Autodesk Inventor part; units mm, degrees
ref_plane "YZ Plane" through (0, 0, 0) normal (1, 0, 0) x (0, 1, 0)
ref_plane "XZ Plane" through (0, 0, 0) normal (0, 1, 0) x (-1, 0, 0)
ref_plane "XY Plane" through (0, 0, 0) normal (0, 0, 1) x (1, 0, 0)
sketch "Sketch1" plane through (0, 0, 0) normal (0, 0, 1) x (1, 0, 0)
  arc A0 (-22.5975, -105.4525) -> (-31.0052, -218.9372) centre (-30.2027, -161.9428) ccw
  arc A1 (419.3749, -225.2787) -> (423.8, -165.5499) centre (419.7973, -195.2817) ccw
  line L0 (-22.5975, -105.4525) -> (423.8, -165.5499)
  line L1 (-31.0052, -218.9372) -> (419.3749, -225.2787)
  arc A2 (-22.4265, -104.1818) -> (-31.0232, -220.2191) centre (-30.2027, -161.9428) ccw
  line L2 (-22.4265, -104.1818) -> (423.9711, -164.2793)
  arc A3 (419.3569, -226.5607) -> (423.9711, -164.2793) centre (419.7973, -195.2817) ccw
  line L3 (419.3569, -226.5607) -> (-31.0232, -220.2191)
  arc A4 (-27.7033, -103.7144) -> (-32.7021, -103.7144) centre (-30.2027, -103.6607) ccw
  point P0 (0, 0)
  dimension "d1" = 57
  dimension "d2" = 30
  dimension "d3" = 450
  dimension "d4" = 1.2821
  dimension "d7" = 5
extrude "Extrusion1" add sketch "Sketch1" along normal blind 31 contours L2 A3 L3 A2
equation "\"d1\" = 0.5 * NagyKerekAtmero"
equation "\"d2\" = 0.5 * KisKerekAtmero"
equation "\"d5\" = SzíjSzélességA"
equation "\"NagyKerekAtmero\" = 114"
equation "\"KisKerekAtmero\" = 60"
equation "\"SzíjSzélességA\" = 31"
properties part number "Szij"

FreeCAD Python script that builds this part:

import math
import FreeCAD as App
import Part
import Sketcher

V = App.Vector
Q = App.Units.Quantity

doc = App.newDocument("Part")
body = doc.addObject("PartDesign::Body", "Body")

# Sketch on XY plane
sketch1 = body.newObject("Sketcher::SketchObject", "Sketch")
sketch1.AttachmentSupport = (doc.getObject("XY_Plane"), [""])
sketch1.MapMode = "FlatFace"
sketch1.addGeometry(Part.LineSegment(V(423.9711, -164.2793, 0), V(-22.4265, -104.1818, 0)), False)
sketch1.addGeometry(Part.ArcOfCircle(Part.Circle(V(-30.2027, -161.9428, 0), V(0, 0, 1), 58.282093), math.radians(82.332532), math.radians(269.193359)), False)
sketch1.addGeometry(Part.LineSegment(V(-31.0232, -220.2191, 0), V(419.3569, -226.5607, 0)), False)
sketch1.addGeometry(Part.ArcOfCircle(Part.Circle(V(419.7973, -195.2817, 0), V(0, 0, 1), 31.2821), math.radians(-90.806656), math.radians(82.33247)), False)
sketch1.addGeometry(Part.ArcOfCircle(Part.Circle(V(-30.2027, -161.9428, 0), V(0, 0, 1), 56.999939), math.radians(82.332462), math.radians(269.19331)), False)
sketch1.addGeometry(Part.LineSegment(V(-22.5975, -105.4525, 0), V(423.8, -165.5499, 0)), False)
sketch1.addGeometry(Part.ArcOfCircle(Part.Circle(V(419.7973, -195.2817, 0), V(0, 0, 1), 29.999974), math.radians(-90.806752), math.radians(82.332548)), False)
sketch1.addGeometry(Part.LineSegment(V(419.3749, -225.2787, 0), V(-31.0052, -218.9372, 0)), False)
sketch1.addConstraint(Sketcher.Constraint("Tangent", 0, 2, 1, 1))
sketch1.addConstraint(Sketcher.Constraint("Tangent", 1, 2, 2, 1))
sketch1.addConstraint(Sketcher.Constraint("Tangent", 2, 2, 3, 1))
sketch1.addConstraint(Sketcher.Constraint("Tangent", 3, 2, 0, 1))
sketch1.addConstraint(Sketcher.Constraint("Tangent", 4, 1, 5, 1))
sketch1.addConstraint(Sketcher.Constraint("Tangent", 5, 2, 6, 2))
sketch1.addConstraint(Sketcher.Constraint("Tangent", 6, 1, 7, 1))
sketch1.addConstraint(Sketcher.Constraint("Tangent", 7, 2, 4, 2))
sketch1.addConstraint(Sketcher.Constraint("Coincident", 4, 3, 1, 3))
sketch1.addConstraint(Sketcher.Constraint("Coincident", 6, 3, 3, 3))
sketch1.addConstraint(Sketcher.Constraint("Parallel", 0, 5))
sketch1.addConstraint(Sketcher.Constraint("Radius", 4, Q("57 mm")))
sketch1.addConstraint(Sketcher.Constraint("Radius", 6, Q("30 mm")))
sketch1.addConstraint(Sketcher.Constraint("DistanceX", 1, 3, 3, 3, Q("450 mm")))
sketch1.addConstraint(Sketcher.Constraint("Radius", 1, Q("58.282 mm")))
sketch1.addConstraint(Sketcher.Constraint("DistanceX", -1, 1, 5, 2, Q("423.8 mm")))
sketch1.addConstraint(Sketcher.Constraint("DistanceY", 3, 3, 0, 2, Q("91.1 mm")))
sketch1.addConstraint(Sketcher.Constraint("DistanceY", 5, 2, -1, 1, Q("165.55 mm")))
pad1 = body.newObject("PartDesign::Pad", "Pad")
pad1.Profile = sketch1
pad1.Length = 31

doc.recompute()
